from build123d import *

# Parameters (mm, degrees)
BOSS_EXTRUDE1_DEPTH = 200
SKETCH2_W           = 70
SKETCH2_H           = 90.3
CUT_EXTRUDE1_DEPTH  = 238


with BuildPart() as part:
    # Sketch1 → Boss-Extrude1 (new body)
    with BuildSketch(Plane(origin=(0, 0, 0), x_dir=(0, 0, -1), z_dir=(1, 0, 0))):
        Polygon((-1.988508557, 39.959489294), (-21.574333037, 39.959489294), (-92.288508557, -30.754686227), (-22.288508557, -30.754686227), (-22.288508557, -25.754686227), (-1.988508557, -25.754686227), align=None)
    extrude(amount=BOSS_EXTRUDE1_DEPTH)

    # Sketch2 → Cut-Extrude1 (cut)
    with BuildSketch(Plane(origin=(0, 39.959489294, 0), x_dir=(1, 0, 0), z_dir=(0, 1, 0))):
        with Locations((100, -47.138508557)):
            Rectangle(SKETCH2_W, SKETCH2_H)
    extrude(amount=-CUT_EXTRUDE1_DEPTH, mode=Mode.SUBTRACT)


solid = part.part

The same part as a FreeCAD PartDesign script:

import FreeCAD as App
import Part
import Sketcher
Q = App.Units.Quantity


def add_polygon(sketch, points):
    """Adds a closed chain of lines whose ends are joined by coincident constraints."""
    first, n = sketch.GeometryCount, len(points)
    for a, b in zip(points, points[1:] + points[:1]):
        sketch.addGeometry(Part.LineSegment(App.Vector(*a, 0), App.Vector(*b, 0)), False)
    for i in range(n):
        sketch.addConstraint(Sketcher.Constraint("Coincident", first + i, 2, first + (i + 1) % n, 1))

doc = App.newDocument("Part")
body = doc.addObject("PartDesign::Body", "Body")
body.AllowCompound = True

# Sketch on YZ plane
sketch1 = body.newObject("Sketcher::SketchObject", "Sketch")
sketch1.AttachmentSupport = (doc.getObject("YZ_Plane"), [""])
sketch1.MapMode = "FlatFace"
add_polygon(sketch1, [(40, 2), (40, 22), (-31, 92), (-31, 22), (-26, 22), (-26, 2)])  # lines 0-5
sketch1.addConstraint([
    Sketcher.Constraint("Vertical", 0),
    Sketcher.Constraint("Vertical", 2),
    Sketcher.Constraint("Horizontal", 3),
    Sketcher.Constraint("Vertical", 4),
    Sketcher.Constraint("Horizontal", 5),
    Sketcher.Constraint("DistanceX", 3, 1, 3, 2, 5.0),
    Sketcher.Constraint("DistanceY", 2, 2, 2, 1, 70.0),
    Sketcher.Constraint("Angle", 1, Q("135 deg")),
    Sketcher.Constraint("DistanceY", 4, 2, 4, 1, 20.3),
    Sketcher.Constraint("DistanceX", 5, 1, 5, 2, 65.714176),
    Sketcher.Constraint("DistanceX", -1, 1, 0, 2, 39.959489),
    Sketcher.Constraint("DistanceY", -1, 1, 1, 2, 92.288509),
])
pad1 = body.newObject("PartDesign::Pad", "Pad")
pad1.Profile = sketch1
pad1.Length = 200

# Sketch on XZ plane
sketch2 = body.newObject("Sketcher::SketchObject", "Sketch001")
sketch2.AttachmentSupport = (doc.getObject("XZ_Plane"), [""])
sketch2.MapMode = "FlatFace"
sketch2.AttachmentOffset = App.Placement(App.Vector(0, 0, -39.959489), App.Rotation())
add_polygon(sketch2, [(65, 2), (65, 92), (135, 92), (135, 2)])  # lines 0-3
sketch2.addConstraint([
    Sketcher.Constraint("Vertical", 0),
    Sketcher.Constraint("Horizontal", 1),
    Sketcher.Constraint("Vertical", 2),
    Sketcher.Constraint("Horizontal", 3),
    Sketcher.Constraint("DistanceX", 1, 1, 1, 2, 70.0),
    Sketcher.Constraint("DistanceY", 0, 1, 0, 2, 90.3),
    Sketcher.Constraint("DistanceX", -1, 1, 0, 2, 65.0),
    Sketcher.Constraint("DistanceY", -1, 1, 0, 2, 92.288509),
])
pocket1 = body.newObject("PartDesign::Pocket", "Pocket")
pocket1.Profile = sketch2
pocket1.Length = 238
pocket1.Reversed = True

doc.recompute()
